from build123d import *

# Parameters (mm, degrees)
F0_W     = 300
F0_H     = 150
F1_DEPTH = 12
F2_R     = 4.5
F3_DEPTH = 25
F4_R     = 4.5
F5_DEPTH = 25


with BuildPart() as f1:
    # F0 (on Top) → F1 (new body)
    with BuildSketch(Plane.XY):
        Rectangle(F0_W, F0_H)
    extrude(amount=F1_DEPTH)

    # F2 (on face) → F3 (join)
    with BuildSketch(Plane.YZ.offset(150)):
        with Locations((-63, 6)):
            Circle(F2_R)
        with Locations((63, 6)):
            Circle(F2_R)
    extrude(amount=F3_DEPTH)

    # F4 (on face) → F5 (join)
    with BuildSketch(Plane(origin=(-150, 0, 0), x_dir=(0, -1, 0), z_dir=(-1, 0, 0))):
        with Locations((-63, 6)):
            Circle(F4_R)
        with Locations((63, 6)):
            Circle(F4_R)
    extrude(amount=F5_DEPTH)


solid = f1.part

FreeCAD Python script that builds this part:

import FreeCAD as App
import Part
import Sketcher
Q = App.Units.Quantity

doc = App.newDocument("Part")
body = doc.addObject("PartDesign::Body", "Body")

# Sketch on XY plane
sketch1 = doc.addObject("Sketcher::SketchObject", "Sketch")
body.addObject(sketch1)
sketch1.AttachmentSupport = (doc.XY_Plane, [""])
sketch1.MapMode = "FlatFace"
sketch1.addGeometry([
    Part.LineSegment(App.Vector(-150, 75, 0), App.Vector(-150, -75, 0)),
    Part.LineSegment(App.Vector(-150, -75, 0), App.Vector(150, -75, 0)),
    Part.LineSegment(App.Vector(150, -75, 0), App.Vector(150, 75, 0)),
    Part.LineSegment(App.Vector(150, 75, 0), App.Vector(-150, 75, 0)),
], False)
sketch1.addConstraint([
    Sketcher.Constraint("Coincident", 0, 2, 1, 1),
    Sketcher.Constraint("Coincident", 1, 2, 2, 1),
    Sketcher.Constraint("Coincident", 2, 2, 3, 1),
    Sketcher.Constraint("Coincident", 3, 2, 0, 1),
    Sketcher.Constraint("Vertical", 0),
    Sketcher.Constraint("Horizontal", 1),
    Sketcher.Constraint("Vertical", 2),
    Sketcher.Constraint("Horizontal", 3),
    Sketcher.Constraint("Symmetric", 0, 2, 2, 2, -1, 1),
    Sketcher.Constraint("DistanceX", 1, 1, 1, 2, Q("300 mm")),
    Sketcher.Constraint("DistanceY", 0, 2, 0, 1, Q("150 mm")),
])
pad1 = doc.addObject("PartDesign::Pad", "Pad")
body.addObject(pad1)
pad1.Profile = sketch1
pad1.Length = 12

# Sketch on YZ plane
sketch2 = doc.addObject("Sketcher::SketchObject", "Sketch001")
body.addObject(sketch2)
sketch2.AttachmentSupport = (doc.YZ_Plane, [""])
sketch2.MapMode = "FlatFace"
sketch2.AttachmentOffset = App.Placement(App.Vector(0, 0, 150), App.Rotation())
sketch2.addGeometry([
    Part.Circle(App.Vector(-63, 6, 0), App.Vector(0, 0, 1), 4.5),
    Part.Circle(App.Vector(63, 6, 0), App.Vector(0, 0, 1), 4.5),
], False)
sketch2.addConstraint([
    Sketcher.Constraint("Equal", 0, 1),
    Sketcher.Constraint("Symmetric", 0, 3, 1, 3, -2),
    Sketcher.Constraint("Diameter", 0, Q("9 mm")),
    Sketcher.Constraint("DistanceX", 0, 3, -1, 1, Q("63 mm")),
    Sketcher.Constraint("DistanceY", -1, 1, 0, 3, Q("6 mm")),
])
pad2 = doc.addObject("PartDesign::Pad", "Pad001")
body.addObject(pad2)
pad2.Profile = sketch2
pad2.Length = 25

# Sketch on YZ plane
sketch3 = doc.addObject("Sketcher::SketchObject", "Sketch002")
body.addObject(sketch3)
sketch3.AttachmentSupport = (doc.YZ_Plane, [""])
sketch3.MapMode = "FlatFace"
sketch3.AttachmentOffset = App.Placement(App.Vector(0, 0, -150), App.Rotation())
sketch3.addGeometry([
    Part.Circle(App.Vector(63, 6, 0), App.Vector(0, 0, 1), 4.5),
    Part.Circle(App.Vector(-63, 6, 0), App.Vector(0, 0, 1), 4.5),
], False)
sketch3.addConstraint([
    Sketcher.Constraint("Equal", 0, 1),
    Sketcher.Constraint("Symmetric", 0, 3, 1, 3, -2),
    Sketcher.Constraint("Diameter", 0, Q("9 mm")),
    Sketcher.Constraint("DistanceX", -1, 1, 0, 3, Q("63 mm")),
    Sketcher.Constraint("DistanceY", -1, 1, 0, 3, Q("6 mm")),
])
pad3 = doc.addObject("PartDesign::Pad", "Pad002")
body.addObject(pad3)
pad3.Profile = sketch3
pad3.Length = 25
pad3.Reversed = True

doc.recompute()
